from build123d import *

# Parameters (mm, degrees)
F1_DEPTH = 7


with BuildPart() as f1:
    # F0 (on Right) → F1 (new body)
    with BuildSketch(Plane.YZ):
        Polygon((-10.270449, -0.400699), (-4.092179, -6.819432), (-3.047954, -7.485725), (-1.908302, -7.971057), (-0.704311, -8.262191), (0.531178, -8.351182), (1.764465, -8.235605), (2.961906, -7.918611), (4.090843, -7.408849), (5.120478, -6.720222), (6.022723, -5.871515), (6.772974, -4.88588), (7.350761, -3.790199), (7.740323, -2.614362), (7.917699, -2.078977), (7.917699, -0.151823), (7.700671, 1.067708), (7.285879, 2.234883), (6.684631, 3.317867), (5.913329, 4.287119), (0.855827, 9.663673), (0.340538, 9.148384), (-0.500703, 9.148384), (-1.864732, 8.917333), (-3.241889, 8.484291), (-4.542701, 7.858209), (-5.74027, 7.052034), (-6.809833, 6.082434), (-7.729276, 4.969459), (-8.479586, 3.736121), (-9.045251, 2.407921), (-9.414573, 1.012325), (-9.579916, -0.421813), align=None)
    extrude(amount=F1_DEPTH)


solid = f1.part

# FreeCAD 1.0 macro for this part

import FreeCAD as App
import Part
import Sketcher


def add_polygon(sketch, points):
    """Adds a closed chain of lines whose ends are joined by coincident constraints."""
    first, n = sketch.GeometryCount, len(points)
    for a, b in zip(points, points[1:] + points[:1]):
        sketch.addGeometry(Part.LineSegment(App.Vector(*a, 0), App.Vector(*b, 0)), False)
    for i in range(n):
        sketch.addConstraint(Sketcher.Constraint("Coincident", first + i, 2, first + (i + 1) % n, 1))

doc = App.newDocument("Part")
body = doc.addObject("PartDesign::Body", "Body")

sketch1 = body.newObject("Sketcher::SketchObject", "Sketch")
sketch1.AttachmentSupport = (doc.getObject("YZ_Plane"), [""])
sketch1.MapMode = "FlatFace"
add_polygon(sketch1, [(-10.270449, -0.400699), (-4.092179, -6.819432), (-3.047954, -7.485725), (-1.908302, -7.971057), (-0.704311, -8.262191), (0.531178, -8.351182), (1.764465, -8.235605), (2.961906, -7.918611), (4.090843, -7.408849), (5.120478, -6.720222), (6.022723, -5.871515), (6.772974, -4.88588), (7.350761, -3.790199), (7.740323, -2.614362), (7.917699, -2.078977), (7.917699, -0.151823), (7.700671, 1.067708), (7.285879, 2.234883), (6.684631, 3.317867), (5.913329, 4.287119), (0.855827, 9.663673), (0.340538, 9.148384), (-0.500703, 9.148384), (-1.864732, 8.917333), (-3.241889, 8.484291), (-4.542701, 7.858209), (-5.74027, 7.052034), (-6.809833, 6.082434), (-7.729276, 4.969459), (-8.479586, 3.736121), (-9.045251, 2.407921), (-9.414573, 1.012325), (-9.579916, -0.421813)])
sketch1.addConstraint(Sketcher.Constraint("Vertical", 14))
sketch1.addConstraint(Sketcher.Constraint("Horizontal", 21))
sketch1.addConstraint(Sketcher.Constraint("DistanceX", 24, 2, 21, 2, 4.041998))
sketch1.addConstraint(Sketcher.Constraint("DistanceX", 21, 2, 21, 1, 0.841241))
sketch1.addConstraint(Sketcher.Constraint("DistanceX", 2, 2, -1, 1, 1.908302))
sketch1.addConstraint(Sketcher.Constraint("DistanceY", 11, 2, -1, 1, 3.790199))
sketch1.addConstraint(Sketcher.Constraint("DistanceX", -1, 1, 13, 2, 7.917699))
sketch1.addConstraint(Sketcher.Constraint("DistanceX", 24, 2, -1, 1, 4.542701))
sketch1.addConstraint(Sketcher.Constraint("DistanceY", 32, 2, -1, 1, 0.400699))
sketch1.addConstraint(Sketcher.Constraint("DistanceX", 4, 2, 8, 2, 4.5893))
sketch1.addConstraint(Sketcher.Constraint("DistanceX", 9, 2, 12, 2, 1.7176))
sketch1.addConstraint(Sketcher.Constraint("DistanceY", 16, 2, 20, 2, 6.913501))
sketch1.addConstraint(Sketcher.Constraint("DistanceY", 25, 2, 22, 2, 1.865299))
sketch1.addConstraint(Sketcher.Constraint("DistanceY", 26, 2, 25, 2, 0.9696))
sketch1.addConstraint(Sketcher.Constraint("DistanceX", 26, 2, 22, 2, 4.945101))
sketch1.addConstraint(Sketcher.Constraint("DistanceY", 29, 2, 28, 2, 1.3282))
sketch1.addConstraint(Sketcher.Constraint("Distance", 0, 8.909049))
sketch1.addConstraint(Sketcher.Constraint("Distance", 1, 1.23869))
sketch1.addConstraint(Sketcher.Constraint("Distance", 2, 1.23869))
sketch1.addConstraint(Sketcher.Constraint("Distance", 3, 1.23869))
sketch1.addConstraint(Sketcher.Constraint("Distance", 4, 1.23869))
sketch1.addConstraint(Sketcher.Constraint("Distance", 5, 1.238691))
sketch1.addConstraint(Sketcher.Constraint("Distance", 6, 1.238689))
sketch1.addConstraint(Sketcher.Constraint("Distance", 7, 1.238691))
sketch1.addConstraint(Sketcher.Constraint("Distance", 8, 1.238691))
sketch1.addConstraint(Sketcher.Constraint("Distance", 9, 1.238689))
sketch1.addConstraint(Sketcher.Constraint("Distance", 10, 1.23869))
sketch1.addConstraint(Sketcher.Constraint("Distance", 11, 1.238691))
sketch1.addConstraint(Sketcher.Constraint("Distance", 12, 1.238689))
sketch1.addConstraint(Sketcher.Constraint("Distance", 15, 1.238692))
sketch1.addConstraint(Sketcher.Constraint("Distance", 16, 1.238689))
sketch1.addConstraint(Sketcher.Constraint("Distance", 17, 1.23869))
sketch1.addConstraint(Sketcher.Constraint("Distance", 18, 1.238691))
sketch1.addConstraint(Sketcher.Constraint("Distance", 19, 7.38144))
sketch1.addConstraint(Sketcher.Constraint("Distance", 20, 0.728729))
sketch1.addConstraint(Sketcher.Constraint("Distance", 22, 1.383459))
sketch1.addConstraint(Sketcher.Constraint("Distance", 29, 1.443639))
sketch1.addConstraint(Sketcher.Constraint("DistanceY", 14, 1, 14, 2, 1.927154))
sketch1.addConstraint(Sketcher.Constraint("DistanceX", 0, 2, -1, 1, 4.092179))
sketch1.addConstraint(Sketcher.Constraint("DistanceX", 3, 2, -1, 1, 0.704311))
sketch1.addConstraint(Sketcher.Constraint("DistanceY", 3, 2, -1, 1, 8.262191))
sketch1.addConstraint(Sketcher.Constraint("DistanceX", -1, 1, 4, 2, 0.531178))
sketch1.addConstraint(Sketcher.Constraint("DistanceY", 6, 2, -1, 1, 7.918611))
sketch1.addConstraint(Sketcher.Constraint("DistanceY", 7, 2, -1, 1, 7.408849))
sketch1.addConstraint(Sketcher.Constraint("DistanceY", 8, 2, -1, 1, 6.720222))
sketch1.addConstraint(Sketcher.Constraint("DistanceY", 10, 2, -1, 1, 4.88588))
sketch1.addConstraint(Sketcher.Constraint("DistanceX", -1, 1, 11, 2, 7.350761))
sketch1.addConstraint(Sketcher.Constraint("DistanceX", -1, 1, 15, 2, 7.700671))
sketch1.addConstraint(Sketcher.Constraint("DistanceY", -1, 1, 15, 2, 1.067708))
sketch1.addConstraint(Sketcher.Constraint("DistanceX", -1, 1, 16, 2, 7.285879))
sketch1.addConstraint(Sketcher.Constraint("DistanceX", -1, 1, 17, 2, 6.684631))
sketch1.addConstraint(Sketcher.Constraint("DistanceX", -1, 1, 18, 2, 5.913329))
sketch1.addConstraint(Sketcher.Constraint("DistanceX", 23, 2, -1, 1, 3.241889))
sketch1.addConstraint(Sketcher.Constraint("DistanceY", -1, 1, 23, 2, 8.484291))
sketch1.addConstraint(Sketcher.Constraint("DistanceY", -1, 1, 24, 2, 7.858209))
sketch1.addConstraint(Sketcher.Constraint("DistanceX", 25, 2, -1, 1, 5.74027))
sketch1.addConstraint(Sketcher.Constraint("DistanceY", -1, 1, 27, 2, 4.969459))
sketch1.addConstraint(Sketcher.Constraint("DistanceY", -1, 1, 28, 2, 3.736121))
sketch1.addConstraint(Sketcher.Constraint("DistanceX", 29, 2, -1, 1, 9.045251))
sketch1.addConstraint(Sketcher.Constraint("DistanceX", 32, 2, -1, 1, 10.270449))
sketch1.addConstraint(Sketcher.Constraint("DistanceX", 22, 2, 21, 2, 1.364029))
sketch1.addConstraint(Sketcher.Constraint("DistanceX", 28, 2, 27, 2, 0.75031))
sketch1.addConstraint(Sketcher.Constraint("DistanceX", 30, 2, 26, 2, 2.60474))
sketch1.addConstraint(Sketcher.Constraint("DistanceY", 30, 2, 26, 2, 5.070109))
sketch1.addConstraint(Sketcher.Constraint("DistanceX", 31, 2, 28, 2, 1.10033))
sketch1.addConstraint(Sketcher.Constraint("Distance", 31, 1.443638))
pad1 = body.newObject("PartDesign::Pad", "Pad")
pad1.Profile = sketch1
pad1.Length = 7

doc.recompute()
